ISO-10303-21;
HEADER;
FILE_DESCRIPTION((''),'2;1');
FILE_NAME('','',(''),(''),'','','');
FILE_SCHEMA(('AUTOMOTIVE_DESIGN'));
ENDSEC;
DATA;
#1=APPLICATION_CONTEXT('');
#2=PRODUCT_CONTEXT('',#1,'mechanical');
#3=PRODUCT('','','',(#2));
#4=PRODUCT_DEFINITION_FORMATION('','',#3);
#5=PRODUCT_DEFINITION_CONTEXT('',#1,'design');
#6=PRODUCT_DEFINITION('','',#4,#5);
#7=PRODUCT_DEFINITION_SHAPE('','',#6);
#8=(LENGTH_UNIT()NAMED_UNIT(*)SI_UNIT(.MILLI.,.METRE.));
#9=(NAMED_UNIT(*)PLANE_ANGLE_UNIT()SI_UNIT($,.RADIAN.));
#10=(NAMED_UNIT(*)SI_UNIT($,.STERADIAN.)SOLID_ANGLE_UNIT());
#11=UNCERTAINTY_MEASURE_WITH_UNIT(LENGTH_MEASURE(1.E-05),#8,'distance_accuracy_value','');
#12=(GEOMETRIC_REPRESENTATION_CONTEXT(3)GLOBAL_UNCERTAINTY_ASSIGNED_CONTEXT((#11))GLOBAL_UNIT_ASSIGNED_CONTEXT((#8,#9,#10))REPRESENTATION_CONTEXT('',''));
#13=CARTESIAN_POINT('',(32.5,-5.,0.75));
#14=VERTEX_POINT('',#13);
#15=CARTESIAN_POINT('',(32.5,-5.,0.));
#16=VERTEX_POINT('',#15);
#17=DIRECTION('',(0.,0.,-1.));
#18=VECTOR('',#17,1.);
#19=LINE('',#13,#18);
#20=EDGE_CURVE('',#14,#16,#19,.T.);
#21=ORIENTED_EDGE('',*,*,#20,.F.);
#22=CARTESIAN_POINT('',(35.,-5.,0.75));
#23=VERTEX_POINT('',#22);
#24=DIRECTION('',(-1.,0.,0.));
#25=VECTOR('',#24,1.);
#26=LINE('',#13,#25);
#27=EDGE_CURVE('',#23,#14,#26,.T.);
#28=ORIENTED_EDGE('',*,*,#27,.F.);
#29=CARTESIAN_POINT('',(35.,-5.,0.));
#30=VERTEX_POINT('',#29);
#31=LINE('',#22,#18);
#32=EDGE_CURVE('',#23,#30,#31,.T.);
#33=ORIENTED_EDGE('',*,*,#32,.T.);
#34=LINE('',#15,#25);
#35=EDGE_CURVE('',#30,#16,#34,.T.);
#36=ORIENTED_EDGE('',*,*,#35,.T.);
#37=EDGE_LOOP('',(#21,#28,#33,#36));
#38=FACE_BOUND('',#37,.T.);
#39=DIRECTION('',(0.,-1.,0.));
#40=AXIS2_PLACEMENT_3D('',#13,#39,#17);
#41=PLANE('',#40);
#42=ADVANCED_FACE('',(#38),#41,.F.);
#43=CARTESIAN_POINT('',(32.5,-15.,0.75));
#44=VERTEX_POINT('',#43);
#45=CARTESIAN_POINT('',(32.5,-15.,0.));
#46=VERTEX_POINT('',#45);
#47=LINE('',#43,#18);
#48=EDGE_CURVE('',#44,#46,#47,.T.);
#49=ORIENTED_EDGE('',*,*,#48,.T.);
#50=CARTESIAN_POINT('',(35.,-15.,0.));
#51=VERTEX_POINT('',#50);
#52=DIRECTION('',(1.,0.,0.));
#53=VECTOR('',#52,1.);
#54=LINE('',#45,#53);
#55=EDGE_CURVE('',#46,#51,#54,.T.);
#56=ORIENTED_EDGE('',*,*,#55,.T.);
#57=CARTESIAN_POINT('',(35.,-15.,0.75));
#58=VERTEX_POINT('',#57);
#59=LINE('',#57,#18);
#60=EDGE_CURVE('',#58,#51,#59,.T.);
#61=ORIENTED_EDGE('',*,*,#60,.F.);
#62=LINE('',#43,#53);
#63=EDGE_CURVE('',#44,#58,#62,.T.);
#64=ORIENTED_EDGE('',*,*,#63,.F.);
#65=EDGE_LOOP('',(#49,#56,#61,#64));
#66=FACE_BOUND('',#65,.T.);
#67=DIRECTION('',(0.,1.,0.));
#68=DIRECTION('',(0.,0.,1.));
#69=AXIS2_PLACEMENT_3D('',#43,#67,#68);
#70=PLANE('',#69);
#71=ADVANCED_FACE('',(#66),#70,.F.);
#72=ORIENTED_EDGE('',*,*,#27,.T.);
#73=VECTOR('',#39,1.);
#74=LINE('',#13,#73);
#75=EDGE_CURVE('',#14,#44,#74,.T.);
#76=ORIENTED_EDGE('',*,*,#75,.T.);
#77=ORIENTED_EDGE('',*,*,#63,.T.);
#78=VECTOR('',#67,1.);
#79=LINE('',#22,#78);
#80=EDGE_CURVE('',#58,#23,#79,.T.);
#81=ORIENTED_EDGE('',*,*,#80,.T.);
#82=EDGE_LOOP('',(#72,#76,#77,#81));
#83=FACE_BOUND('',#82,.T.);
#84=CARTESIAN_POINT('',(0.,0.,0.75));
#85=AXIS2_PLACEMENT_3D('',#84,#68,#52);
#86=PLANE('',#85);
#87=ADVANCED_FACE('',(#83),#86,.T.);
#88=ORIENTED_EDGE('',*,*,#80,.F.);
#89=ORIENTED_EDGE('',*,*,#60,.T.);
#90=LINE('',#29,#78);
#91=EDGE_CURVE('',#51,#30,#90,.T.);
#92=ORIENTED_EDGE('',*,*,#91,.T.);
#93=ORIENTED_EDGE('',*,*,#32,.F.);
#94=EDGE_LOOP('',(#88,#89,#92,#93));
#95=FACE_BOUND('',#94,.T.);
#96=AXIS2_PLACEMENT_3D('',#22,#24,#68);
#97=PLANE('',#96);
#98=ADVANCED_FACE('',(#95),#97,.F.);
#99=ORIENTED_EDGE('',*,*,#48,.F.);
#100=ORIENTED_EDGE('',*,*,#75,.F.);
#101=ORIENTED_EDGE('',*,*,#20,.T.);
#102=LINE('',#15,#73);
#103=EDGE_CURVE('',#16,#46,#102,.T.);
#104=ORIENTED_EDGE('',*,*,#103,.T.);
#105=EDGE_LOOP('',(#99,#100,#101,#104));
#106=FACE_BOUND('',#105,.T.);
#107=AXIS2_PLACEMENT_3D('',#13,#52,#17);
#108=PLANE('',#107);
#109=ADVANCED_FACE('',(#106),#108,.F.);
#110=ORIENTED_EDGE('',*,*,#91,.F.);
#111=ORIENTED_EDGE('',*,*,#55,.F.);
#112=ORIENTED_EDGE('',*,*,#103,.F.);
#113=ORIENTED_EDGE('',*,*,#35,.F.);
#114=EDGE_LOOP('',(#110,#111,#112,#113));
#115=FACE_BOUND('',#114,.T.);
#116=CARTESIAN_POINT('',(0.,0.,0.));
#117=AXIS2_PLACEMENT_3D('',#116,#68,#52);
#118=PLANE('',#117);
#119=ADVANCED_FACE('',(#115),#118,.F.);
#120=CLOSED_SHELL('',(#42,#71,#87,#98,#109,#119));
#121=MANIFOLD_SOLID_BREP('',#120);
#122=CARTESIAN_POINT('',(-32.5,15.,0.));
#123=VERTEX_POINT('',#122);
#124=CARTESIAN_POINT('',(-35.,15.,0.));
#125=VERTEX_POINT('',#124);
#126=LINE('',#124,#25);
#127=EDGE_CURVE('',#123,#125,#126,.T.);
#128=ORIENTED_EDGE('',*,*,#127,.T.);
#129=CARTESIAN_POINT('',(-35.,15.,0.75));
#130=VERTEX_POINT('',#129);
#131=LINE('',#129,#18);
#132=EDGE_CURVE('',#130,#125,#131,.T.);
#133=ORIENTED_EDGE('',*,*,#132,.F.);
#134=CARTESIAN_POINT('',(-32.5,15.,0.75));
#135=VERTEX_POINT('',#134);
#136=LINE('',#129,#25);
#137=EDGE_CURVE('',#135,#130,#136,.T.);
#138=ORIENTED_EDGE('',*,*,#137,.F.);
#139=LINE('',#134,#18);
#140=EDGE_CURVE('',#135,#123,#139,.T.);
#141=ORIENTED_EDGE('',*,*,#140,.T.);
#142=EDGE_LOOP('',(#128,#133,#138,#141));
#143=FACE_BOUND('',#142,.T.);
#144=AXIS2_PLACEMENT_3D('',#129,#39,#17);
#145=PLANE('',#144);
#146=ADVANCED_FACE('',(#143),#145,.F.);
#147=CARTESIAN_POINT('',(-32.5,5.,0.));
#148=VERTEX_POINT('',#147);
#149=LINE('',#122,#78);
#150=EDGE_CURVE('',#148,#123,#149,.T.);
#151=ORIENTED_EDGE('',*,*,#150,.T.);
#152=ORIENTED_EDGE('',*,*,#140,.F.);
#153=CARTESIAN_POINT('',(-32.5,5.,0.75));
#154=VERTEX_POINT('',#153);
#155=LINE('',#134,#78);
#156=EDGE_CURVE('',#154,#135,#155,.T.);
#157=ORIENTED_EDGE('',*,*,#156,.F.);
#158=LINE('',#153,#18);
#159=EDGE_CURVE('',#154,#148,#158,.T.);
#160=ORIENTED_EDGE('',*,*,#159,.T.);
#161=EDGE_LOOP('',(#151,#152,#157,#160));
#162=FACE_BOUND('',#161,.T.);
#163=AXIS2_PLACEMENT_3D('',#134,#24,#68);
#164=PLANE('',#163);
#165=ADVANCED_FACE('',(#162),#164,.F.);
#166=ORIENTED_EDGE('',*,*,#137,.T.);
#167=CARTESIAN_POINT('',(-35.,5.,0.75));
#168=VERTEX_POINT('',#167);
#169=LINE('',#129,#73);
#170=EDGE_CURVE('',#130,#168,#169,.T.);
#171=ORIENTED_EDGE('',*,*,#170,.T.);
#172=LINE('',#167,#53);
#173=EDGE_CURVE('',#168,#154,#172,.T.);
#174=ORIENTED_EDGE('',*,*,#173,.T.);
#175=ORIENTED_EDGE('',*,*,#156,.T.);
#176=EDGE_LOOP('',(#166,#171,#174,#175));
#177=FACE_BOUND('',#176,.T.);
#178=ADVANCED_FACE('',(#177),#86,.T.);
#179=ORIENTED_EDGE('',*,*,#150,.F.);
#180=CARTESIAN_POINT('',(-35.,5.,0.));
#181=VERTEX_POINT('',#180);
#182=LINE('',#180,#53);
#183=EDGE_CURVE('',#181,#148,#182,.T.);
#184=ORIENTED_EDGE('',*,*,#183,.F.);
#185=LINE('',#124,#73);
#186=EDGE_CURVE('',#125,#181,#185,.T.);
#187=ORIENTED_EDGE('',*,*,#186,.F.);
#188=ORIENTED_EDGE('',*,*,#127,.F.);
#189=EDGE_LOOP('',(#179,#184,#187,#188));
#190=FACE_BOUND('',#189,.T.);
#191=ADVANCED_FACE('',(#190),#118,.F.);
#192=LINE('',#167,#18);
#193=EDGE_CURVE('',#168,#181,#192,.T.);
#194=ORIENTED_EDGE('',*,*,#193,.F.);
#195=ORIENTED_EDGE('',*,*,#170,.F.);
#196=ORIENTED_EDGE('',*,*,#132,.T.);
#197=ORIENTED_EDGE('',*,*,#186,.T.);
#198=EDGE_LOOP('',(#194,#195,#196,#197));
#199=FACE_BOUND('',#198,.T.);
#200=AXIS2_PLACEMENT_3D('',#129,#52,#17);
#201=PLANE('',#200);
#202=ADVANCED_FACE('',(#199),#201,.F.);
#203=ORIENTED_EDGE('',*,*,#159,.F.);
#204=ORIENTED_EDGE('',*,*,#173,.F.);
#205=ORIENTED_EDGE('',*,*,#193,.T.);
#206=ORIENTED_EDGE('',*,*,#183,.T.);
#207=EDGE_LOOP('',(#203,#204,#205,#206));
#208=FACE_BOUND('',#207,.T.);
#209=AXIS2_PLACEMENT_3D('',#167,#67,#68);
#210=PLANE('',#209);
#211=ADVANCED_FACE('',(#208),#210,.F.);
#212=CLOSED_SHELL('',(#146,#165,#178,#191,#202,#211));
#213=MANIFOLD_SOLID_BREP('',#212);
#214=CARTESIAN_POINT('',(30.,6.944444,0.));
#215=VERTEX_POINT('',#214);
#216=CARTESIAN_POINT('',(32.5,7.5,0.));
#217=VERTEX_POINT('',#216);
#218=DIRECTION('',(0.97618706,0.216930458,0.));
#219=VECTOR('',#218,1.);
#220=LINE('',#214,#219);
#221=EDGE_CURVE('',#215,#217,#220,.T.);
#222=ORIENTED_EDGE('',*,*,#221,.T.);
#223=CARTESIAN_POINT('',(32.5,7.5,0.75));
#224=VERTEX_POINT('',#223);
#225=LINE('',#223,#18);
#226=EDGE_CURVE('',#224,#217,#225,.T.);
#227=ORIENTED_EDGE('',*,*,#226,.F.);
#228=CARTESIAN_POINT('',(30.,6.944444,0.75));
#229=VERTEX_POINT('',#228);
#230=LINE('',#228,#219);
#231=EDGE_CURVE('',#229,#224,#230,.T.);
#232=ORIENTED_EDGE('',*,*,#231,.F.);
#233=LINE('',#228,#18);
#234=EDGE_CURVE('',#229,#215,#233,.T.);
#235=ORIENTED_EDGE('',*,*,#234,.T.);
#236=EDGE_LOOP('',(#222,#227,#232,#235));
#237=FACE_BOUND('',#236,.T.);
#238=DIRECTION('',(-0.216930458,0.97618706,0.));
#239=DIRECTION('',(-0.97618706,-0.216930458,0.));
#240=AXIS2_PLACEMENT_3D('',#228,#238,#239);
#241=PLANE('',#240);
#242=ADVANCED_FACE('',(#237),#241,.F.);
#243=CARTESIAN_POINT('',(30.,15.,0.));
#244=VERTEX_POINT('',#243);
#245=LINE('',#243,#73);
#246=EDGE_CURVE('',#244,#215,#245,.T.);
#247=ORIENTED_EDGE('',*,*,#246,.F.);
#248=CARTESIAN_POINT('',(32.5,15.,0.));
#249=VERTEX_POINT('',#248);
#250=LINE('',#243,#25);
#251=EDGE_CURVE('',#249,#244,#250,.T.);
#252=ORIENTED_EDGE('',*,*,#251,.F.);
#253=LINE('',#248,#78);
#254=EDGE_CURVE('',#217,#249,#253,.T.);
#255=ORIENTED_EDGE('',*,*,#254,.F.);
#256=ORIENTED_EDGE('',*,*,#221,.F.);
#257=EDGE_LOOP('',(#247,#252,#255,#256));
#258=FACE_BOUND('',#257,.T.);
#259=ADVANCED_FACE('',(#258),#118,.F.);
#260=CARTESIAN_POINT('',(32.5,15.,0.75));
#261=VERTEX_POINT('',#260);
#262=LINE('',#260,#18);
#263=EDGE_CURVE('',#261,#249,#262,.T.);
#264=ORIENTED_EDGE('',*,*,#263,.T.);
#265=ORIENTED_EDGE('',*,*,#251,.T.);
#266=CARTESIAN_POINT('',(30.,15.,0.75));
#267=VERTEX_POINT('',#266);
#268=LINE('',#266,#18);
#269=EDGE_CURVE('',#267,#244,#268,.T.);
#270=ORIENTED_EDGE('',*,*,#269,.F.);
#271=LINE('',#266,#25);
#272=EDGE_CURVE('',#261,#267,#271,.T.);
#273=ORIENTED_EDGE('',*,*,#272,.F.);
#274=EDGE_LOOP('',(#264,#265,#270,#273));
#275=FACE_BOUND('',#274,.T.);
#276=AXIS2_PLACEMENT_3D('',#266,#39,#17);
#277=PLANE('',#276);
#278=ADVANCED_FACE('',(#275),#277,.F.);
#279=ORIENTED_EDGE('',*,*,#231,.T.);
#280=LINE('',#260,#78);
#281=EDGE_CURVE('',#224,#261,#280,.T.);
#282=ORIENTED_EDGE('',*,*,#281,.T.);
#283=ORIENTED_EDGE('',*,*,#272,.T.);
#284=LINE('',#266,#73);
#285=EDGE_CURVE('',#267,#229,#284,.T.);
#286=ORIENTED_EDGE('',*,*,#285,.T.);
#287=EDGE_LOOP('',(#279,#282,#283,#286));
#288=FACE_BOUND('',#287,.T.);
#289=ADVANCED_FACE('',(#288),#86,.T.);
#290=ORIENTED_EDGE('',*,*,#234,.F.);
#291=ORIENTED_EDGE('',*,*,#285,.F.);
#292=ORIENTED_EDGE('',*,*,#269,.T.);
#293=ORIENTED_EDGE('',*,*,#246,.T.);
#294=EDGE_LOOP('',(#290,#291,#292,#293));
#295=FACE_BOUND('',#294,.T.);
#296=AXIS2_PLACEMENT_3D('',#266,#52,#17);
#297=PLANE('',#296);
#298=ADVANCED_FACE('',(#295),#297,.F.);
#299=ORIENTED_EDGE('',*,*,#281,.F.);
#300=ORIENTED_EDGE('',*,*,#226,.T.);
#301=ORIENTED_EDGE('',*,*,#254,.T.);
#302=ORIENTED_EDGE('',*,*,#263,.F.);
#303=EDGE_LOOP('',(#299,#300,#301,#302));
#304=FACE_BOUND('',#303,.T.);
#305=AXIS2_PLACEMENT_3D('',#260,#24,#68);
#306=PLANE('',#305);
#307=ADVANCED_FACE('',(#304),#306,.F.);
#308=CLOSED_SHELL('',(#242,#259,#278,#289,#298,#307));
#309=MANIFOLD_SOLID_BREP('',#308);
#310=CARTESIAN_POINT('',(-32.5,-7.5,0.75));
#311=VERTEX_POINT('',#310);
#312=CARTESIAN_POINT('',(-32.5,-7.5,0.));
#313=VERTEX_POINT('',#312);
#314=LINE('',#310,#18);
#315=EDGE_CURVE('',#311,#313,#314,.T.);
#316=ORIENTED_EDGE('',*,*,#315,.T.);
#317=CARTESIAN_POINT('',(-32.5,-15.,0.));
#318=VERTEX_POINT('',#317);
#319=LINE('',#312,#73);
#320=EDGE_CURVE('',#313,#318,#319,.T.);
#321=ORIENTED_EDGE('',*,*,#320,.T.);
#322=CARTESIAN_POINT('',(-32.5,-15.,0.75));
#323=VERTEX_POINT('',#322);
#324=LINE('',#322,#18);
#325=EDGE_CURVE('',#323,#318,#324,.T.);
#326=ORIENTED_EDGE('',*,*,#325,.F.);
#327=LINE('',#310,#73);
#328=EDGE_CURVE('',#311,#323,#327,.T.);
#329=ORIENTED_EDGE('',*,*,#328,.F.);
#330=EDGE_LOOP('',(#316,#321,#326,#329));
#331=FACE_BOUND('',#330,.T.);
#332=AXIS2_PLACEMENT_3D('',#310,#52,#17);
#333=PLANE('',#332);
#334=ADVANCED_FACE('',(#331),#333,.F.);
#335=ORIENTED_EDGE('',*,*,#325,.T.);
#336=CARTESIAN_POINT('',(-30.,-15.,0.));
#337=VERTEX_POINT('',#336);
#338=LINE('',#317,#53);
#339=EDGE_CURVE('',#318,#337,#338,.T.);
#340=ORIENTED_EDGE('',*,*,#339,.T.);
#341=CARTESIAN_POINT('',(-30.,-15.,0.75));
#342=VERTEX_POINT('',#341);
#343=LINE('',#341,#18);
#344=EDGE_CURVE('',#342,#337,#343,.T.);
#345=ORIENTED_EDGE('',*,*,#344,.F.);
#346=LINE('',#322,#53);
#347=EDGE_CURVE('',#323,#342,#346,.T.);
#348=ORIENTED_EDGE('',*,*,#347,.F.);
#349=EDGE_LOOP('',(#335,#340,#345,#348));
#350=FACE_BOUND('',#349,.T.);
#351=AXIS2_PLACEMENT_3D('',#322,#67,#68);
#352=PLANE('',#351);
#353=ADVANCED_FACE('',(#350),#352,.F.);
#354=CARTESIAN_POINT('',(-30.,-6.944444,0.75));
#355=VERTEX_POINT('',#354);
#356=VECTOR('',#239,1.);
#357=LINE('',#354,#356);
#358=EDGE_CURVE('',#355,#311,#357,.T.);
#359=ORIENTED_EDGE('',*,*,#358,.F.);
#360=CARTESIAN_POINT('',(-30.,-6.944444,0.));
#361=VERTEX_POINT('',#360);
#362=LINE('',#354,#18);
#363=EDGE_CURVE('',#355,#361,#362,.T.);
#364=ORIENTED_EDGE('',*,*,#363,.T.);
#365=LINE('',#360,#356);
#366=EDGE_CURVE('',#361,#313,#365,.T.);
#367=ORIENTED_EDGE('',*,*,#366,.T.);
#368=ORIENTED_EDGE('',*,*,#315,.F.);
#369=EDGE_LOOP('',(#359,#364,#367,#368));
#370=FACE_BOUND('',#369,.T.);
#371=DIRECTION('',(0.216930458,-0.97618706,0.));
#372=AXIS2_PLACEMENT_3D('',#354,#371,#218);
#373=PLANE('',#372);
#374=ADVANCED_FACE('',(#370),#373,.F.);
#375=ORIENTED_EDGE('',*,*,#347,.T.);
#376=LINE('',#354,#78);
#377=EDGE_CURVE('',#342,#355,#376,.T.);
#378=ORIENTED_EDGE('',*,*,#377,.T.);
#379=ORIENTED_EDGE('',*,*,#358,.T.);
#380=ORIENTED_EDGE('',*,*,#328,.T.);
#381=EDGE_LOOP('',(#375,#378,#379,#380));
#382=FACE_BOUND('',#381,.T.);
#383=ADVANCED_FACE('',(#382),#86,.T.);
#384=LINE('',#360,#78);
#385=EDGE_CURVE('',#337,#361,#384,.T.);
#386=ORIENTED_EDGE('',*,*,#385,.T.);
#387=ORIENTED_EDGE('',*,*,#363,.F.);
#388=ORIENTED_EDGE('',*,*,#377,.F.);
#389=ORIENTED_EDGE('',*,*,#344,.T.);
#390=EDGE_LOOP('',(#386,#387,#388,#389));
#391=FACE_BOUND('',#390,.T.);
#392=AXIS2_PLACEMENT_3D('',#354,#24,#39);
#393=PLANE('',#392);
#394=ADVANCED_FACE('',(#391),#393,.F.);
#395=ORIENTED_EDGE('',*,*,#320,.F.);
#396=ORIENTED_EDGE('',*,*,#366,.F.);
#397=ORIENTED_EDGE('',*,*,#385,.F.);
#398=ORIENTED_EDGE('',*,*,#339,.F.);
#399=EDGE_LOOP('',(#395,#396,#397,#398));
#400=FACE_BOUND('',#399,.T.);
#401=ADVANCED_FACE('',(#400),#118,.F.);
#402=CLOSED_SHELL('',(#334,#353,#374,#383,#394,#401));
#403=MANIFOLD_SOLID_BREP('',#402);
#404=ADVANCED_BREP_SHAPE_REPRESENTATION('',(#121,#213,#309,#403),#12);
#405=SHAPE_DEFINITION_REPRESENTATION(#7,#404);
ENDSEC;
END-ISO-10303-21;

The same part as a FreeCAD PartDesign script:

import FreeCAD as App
import Part
import Sketcher

V = App.Vector


def add_polygon(sketch, points):
    """Adds a closed chain of lines whose ends are joined by coincident constraints."""
    first, n = sketch.GeometryCount, len(points)
    for a, b in zip(points, points[1:] + points[:1]):
        sketch.addGeometry(Part.LineSegment(App.Vector(*a, 0), App.Vector(*b, 0)), False)
    for i in range(n):
        sketch.addConstraint(Sketcher.Constraint("Coincident", first + i, 2, first + (i + 1) % n, 1))

doc = App.newDocument("Part")
body = doc.addObject("PartDesign::Body", "Body")

# Sketch on XY plane
sketch1 = body.newObject("Sketcher::SketchObject", "Sketch")
sketch1.AttachmentSupport = (doc.getObject("XY_Plane"), [""])
sketch1.MapMode = "FlatFace"
add_polygon(sketch1, [(-35, 15), (-35, 5), (-32.5, 5), (-32.5, 15)])  # lines 0-3
sketch1.addConstraint([
    Sketcher.Constraint("Vertical", 0),
    Sketcher.Constraint("Horizontal", 1),
    Sketcher.Constraint("Vertical", 2),
    Sketcher.Constraint("Horizontal", 3),
    Sketcher.Constraint("DistanceY", 0, 2, 0, 1, 10.0),
    Sketcher.Constraint("DistanceX", 1, 1, 1, 2, 2.5),
    Sketcher.Constraint("DistanceX", 0, 2, -1, 1, 35.0),
    Sketcher.Constraint("DistanceY", -1, 1, 0, 2, 5.0),
])
pad1 = body.newObject("PartDesign::Pad", "Pad")
pad1.Profile = sketch1
pad1.Length = 0.75
body2 = doc.addObject("PartDesign::Body", "Body001")

# Sketch on XY plane
sketch2 = body2.newObject("Sketcher::SketchObject", "Sketch001")
sketch2.AttachmentSupport = (doc.getObject("XY_Plane001"), [""])
sketch2.MapMode = "FlatFace"
add_polygon(sketch2, [(32.5, 15), (30, 15), (30, 6.9), (32.5, 7.5)])  # lines 0-3
sketch2.addConstraint([
    Sketcher.Constraint("Horizontal", 0),
    Sketcher.Constraint("Vertical", 1),
    Sketcher.Constraint("Vertical", 3),
    Sketcher.Constraint("DistanceX", 0, 2, 0, 1, 2.5),
    Sketcher.Constraint("DistanceY", 3, 1, 3, 2, 7.5),
    Sketcher.Constraint("DistanceX", -1, 1, 0, 2, 30.0),
    Sketcher.Constraint("DistanceY", -1, 1, 0, 2, 15.0),
    Sketcher.Constraint("DistanceY", 1, 2, 1, 1, 8.055556),
])
pad2 = body2.newObject("PartDesign::Pad", "Pad001")
pad2.Profile = sketch2
pad2.Length = 0.75
body3 = doc.addObject("PartDesign::Body", "Body002")

# Sketch on XY plane
sketch3 = body3.newObject("Sketcher::SketchObject", "Sketch002")
sketch3.AttachmentSupport = (doc.getObject("XY_Plane002"), [""])
sketch3.MapMode = "FlatFace"
add_polygon(sketch3, [(-32.5, -7.5), (-32.5, -15), (-30, -15), (-30, -6.9)])  # lines 0-3
sketch3.addConstraint([
    Sketcher.Constraint("Vertical", 0),
    Sketcher.Constraint("Horizontal", 1),
    Sketcher.Constraint("Vertical", 2),
    Sketcher.Constraint("DistanceX", 1, 1, 1, 2, 2.5),
    Sketcher.Constraint("DistanceY", 0, 2, 0, 1, 7.5),
    Sketcher.Constraint("DistanceY", 0, 2, -1, 1, 15.0),
    Sketcher.Constraint("DistanceX", 1, 2, -1, 1, 30.0),
    Sketcher.Constraint("DistanceY", 2, 1, 2, 2, 8.055556),
])
pad3 = body3.newObject("PartDesign::Pad", "Pad002")
pad3.Profile = sketch3
pad3.Length = 0.75
body4 = doc.addObject("PartDesign::Body", "Body003")

# Sketch on XY plane
sketch4 = body4.newObject("Sketcher::SketchObject", "Sketch003")
sketch4.AttachmentSupport = (doc.getObject("XY_Plane003"), [""])
sketch4.MapMode = "FlatFace"
add_polygon(sketch4, [(32.5, -5), (32.5, -15), (35, -15), (35, -5)])  # lines 0-3
sketch4.addConstraint([
    Sketcher.Constraint("Vertical", 0),
    Sketcher.Constraint("Horizontal", 1),
    Sketcher.Constraint("Vertical", 2),
    Sketcher.Constraint("Horizontal", 3),
    Sketcher.Constraint("DistanceY", 0, 2, 0, 1, 10.0),
    Sketcher.Constraint("DistanceX", 1, 1, 1, 2, 2.5),
    Sketcher.Constraint("DistanceY", 0, 2, -1, 1, 15.0),
    Sketcher.Constraint("DistanceX", -1, 1, 1, 2, 35.0),
])
pad4 = body4.newObject("PartDesign::Pad", "Pad003")
pad4.Profile = sketch4
pad4.Length = 0.75

doc.recompute()
